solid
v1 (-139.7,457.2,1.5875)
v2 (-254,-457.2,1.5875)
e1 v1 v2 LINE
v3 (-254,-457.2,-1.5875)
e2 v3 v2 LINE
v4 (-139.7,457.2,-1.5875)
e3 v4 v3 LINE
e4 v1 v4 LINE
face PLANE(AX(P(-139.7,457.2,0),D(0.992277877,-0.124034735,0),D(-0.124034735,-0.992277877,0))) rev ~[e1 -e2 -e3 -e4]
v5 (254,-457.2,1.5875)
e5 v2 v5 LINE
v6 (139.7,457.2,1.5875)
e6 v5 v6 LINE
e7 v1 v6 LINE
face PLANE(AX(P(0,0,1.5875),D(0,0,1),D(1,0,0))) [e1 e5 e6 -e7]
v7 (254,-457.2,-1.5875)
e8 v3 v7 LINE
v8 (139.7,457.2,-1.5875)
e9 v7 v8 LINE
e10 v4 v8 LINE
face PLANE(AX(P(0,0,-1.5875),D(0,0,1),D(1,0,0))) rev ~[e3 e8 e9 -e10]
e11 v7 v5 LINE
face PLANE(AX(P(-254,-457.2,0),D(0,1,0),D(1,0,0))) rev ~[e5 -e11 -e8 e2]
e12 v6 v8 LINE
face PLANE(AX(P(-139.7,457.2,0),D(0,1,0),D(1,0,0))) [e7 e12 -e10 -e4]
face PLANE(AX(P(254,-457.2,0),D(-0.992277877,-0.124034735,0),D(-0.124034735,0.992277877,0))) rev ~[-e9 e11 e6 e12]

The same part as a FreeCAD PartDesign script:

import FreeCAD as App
import Part
import Sketcher

V = App.Vector
Q = App.Units.Quantity


def add_polygon(sketch, points):
    """Adds a closed chain of lines whose ends are joined by coincident constraints."""
    first, n = sketch.GeometryCount, len(points)
    for a, b in zip(points, points[1:] + points[:1]):
        sketch.addGeometry(Part.LineSegment(App.Vector(*a, 0), App.Vector(*b, 0)), False)
    for i in range(n):
        sketch.addConstraint(Sketcher.Constraint("Coincident", first + i, 2, first + (i + 1) % n, 1))

doc = App.newDocument("Part")
body = doc.addObject("PartDesign::Body", "Body")

# Sketch on XY plane
sketch1 = body.newObject("Sketcher::SketchObject", "Sketch")
sketch1.AttachmentSupport = (doc.getObject("XY_Plane"), [""])
sketch1.MapMode = "FlatFace"
add_polygon(sketch1, [(-140, 457), (-254, -457), (254, -457), (140, 457)])  # lines 0-3
sketch1.addConstraint(Sketcher.Constraint("Horizontal", 1))
sketch1.addConstraint(Sketcher.Constraint("Horizontal", 3))
sketch1.addConstraint(Sketcher.Constraint("Equal", 0, 2))
sketch1.addConstraint(Sketcher.Constraint("DistanceX", 1, 1, 1, 2, Q("20 in")))
sketch1.addConstraint(Sketcher.Constraint("DistanceX", 3, 2, 3, 1, Q("11 in")))
sketch1.addConstraint(Sketcher.Constraint("DistanceY", 1, 2, 2, 2, Q("36 in")))
sketch1.addConstraint(Sketcher.Constraint("DistanceX", 0, 2, -1, 1, Q("10 in")))
sketch1.addConstraint(Sketcher.Constraint("DistanceY", 0, 2, -1, 1, Q("18 in")))
pad1 = body.newObject("PartDesign::Pad", "Pad")
pad1.Profile = sketch1
pad1.Length = Q("0.125 in")
pad1.Midplane = True

doc.recompute()
